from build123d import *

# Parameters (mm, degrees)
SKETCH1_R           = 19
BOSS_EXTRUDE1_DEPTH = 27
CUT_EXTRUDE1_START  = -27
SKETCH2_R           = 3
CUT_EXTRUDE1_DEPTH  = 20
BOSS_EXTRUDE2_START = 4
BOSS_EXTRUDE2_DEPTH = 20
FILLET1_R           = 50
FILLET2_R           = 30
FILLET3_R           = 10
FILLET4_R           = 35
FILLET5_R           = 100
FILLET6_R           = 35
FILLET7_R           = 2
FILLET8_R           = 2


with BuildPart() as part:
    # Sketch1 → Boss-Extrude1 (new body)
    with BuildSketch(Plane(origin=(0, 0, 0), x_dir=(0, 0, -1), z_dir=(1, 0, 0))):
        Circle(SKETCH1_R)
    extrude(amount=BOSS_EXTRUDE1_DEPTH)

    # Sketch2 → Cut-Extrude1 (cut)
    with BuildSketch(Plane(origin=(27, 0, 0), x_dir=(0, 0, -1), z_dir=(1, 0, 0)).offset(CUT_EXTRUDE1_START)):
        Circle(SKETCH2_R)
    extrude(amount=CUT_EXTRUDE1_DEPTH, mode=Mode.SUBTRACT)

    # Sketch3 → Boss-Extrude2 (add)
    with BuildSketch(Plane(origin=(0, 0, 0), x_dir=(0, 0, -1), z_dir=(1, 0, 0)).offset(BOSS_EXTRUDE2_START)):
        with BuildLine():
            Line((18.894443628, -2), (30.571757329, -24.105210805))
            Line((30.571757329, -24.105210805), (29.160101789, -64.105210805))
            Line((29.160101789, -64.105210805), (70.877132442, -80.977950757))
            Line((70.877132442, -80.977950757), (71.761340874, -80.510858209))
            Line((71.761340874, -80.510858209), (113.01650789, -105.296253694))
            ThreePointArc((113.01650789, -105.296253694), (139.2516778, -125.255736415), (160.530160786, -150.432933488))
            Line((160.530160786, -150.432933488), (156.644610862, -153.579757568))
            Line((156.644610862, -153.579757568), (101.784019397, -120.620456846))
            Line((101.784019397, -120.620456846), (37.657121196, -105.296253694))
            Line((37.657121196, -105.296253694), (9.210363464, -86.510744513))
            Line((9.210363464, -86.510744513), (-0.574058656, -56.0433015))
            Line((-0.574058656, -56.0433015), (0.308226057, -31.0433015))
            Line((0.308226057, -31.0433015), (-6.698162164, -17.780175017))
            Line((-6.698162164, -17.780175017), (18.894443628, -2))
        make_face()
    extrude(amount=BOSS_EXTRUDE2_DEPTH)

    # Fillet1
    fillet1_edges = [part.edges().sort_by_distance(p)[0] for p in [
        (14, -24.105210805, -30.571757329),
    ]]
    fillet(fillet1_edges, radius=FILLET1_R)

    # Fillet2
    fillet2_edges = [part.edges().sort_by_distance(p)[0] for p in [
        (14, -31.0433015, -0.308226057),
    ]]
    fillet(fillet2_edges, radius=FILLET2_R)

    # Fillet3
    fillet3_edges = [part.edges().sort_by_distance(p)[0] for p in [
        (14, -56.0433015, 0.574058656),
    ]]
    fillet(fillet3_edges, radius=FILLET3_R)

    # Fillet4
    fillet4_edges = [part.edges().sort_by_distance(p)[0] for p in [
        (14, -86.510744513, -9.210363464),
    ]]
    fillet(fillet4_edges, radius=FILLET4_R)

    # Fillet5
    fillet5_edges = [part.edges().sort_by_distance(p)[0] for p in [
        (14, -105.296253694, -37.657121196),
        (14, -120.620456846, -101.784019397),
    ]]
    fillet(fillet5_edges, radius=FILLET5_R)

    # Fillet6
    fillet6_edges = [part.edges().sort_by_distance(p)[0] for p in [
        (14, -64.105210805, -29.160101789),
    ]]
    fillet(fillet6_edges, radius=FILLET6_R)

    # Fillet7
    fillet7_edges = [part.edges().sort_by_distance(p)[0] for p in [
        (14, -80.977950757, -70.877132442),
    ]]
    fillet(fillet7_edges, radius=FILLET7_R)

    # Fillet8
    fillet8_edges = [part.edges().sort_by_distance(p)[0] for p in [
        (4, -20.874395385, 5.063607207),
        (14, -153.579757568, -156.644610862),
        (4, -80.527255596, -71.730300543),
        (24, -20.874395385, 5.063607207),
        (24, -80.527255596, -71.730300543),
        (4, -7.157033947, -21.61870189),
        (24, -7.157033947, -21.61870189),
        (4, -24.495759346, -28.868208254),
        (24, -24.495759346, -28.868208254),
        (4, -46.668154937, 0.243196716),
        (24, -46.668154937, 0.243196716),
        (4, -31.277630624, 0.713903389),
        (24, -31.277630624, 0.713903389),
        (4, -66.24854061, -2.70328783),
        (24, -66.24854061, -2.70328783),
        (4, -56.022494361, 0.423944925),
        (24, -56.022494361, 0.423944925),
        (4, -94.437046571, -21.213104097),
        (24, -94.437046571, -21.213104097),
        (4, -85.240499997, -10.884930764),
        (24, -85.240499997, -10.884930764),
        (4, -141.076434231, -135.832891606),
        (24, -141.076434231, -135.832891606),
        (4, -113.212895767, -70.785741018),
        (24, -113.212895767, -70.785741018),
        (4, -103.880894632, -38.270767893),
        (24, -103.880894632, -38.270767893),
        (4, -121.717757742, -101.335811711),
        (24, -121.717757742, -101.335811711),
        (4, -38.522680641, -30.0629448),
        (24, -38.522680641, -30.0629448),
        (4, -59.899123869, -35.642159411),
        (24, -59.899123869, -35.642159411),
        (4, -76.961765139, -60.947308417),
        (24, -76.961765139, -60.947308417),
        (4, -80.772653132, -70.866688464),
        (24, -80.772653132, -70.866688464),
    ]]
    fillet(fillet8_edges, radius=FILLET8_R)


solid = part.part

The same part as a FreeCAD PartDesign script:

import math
import FreeCAD as App
import Part
import Sketcher


def edges_at(feature, points):
    """Names of the edges that pass closest to the given points."""
    edges = feature.Shape.Edges
    near = lambda p: min(range(len(edges)), key=lambda i: edges[i].distToShape(Part.Vertex(*p))[0])
    return sorted({f"Edge{near(p) + 1}" for p in points})

doc = App.newDocument("Part")
body = doc.addObject("PartDesign::Body", "Body")

# Sketch on YZ plane
sketch1 = doc.addObject("Sketcher::SketchObject", "Sketch")
body.addObject(sketch1)
sketch1.AttachmentSupport = (doc.YZ_Plane, [""])
sketch1.MapMode = "FlatFace"
sketch1.addGeometry(Part.Circle(App.Vector(0, 0, 0), App.Vector(0, 0, 1), 19), False)
sketch1.addConstraint([
    Sketcher.Constraint("Coincident", 0, 3, -1, 1),
    Sketcher.Constraint("Diameter", 0, 38.0),
])
pad1 = doc.addObject("PartDesign::Pad", "Pad")
body.addObject(pad1)
pad1.Profile = sketch1
pad1.Length = 27

# Sketch on YZ plane
sketch2 = doc.addObject("Sketcher::SketchObject", "Sketch001")
body.addObject(sketch2)
sketch2.AttachmentSupport = (doc.YZ_Plane, [""])
sketch2.MapMode = "FlatFace"
sketch2.addGeometry(Part.Circle(App.Vector(0, 0, 0), App.Vector(0, 0, 1), 3), False)
sketch2.addConstraint([
    Sketcher.Constraint("Coincident", 0, 3, -1, 1),
    Sketcher.Constraint("Diameter", 0, 6.0),
])
pocket1 = doc.addObject("PartDesign::Pocket", "Pocket")
body.addObject(pocket1)
pocket1.Profile = sketch2
pocket1.Length = 20
pocket1.Reversed = True

# Sketch on YZ plane
sketch3 = doc.addObject("Sketcher::SketchObject", "Sketch002")
body.addObject(sketch3)
sketch3.AttachmentSupport = (doc.YZ_Plane, [""])
sketch3.MapMode = "FlatFace"
sketch3.AttachmentOffset = App.Placement(App.Vector(0, 0, 4), App.Rotation())
sketch3.addGeometry([
    Part.LineSegment(App.Vector(-24.1, -30.6, 0), App.Vector(-2, -18.9, 0)),  # 0
    Part.LineSegment(App.Vector(-2, -18.9, 0), App.Vector(-17.8, 6.7, 0)),  # 1
    Part.LineSegment(App.Vector(-17.8, 6.7, 0), App.Vector(-31, -0.3, 0)),  # 2
    Part.LineSegment(App.Vector(-31, -0.3, 0), App.Vector(-56, 0.6, 0)),  # 3
    Part.LineSegment(App.Vector(-56, 0.6, 0), App.Vector(-86.5, -9.2, 0)),  # 4
    Part.LineSegment(App.Vector(-86.5, -9.2, 0), App.Vector(-105.3, -37.7, 0)),  # 5
    Part.LineSegment(App.Vector(-105.3, -37.7, 0), App.Vector(-120.6, -101.8, 0)),  # 6
    Part.LineSegment(App.Vector(-120.6, -101.8, 0), App.Vector(-153.6, -156.6, 0)),  # 7
    Part.LineSegment(App.Vector(-153.6, -156.6, 0), App.Vector(-150.4, -160.5, 0)),  # 8
    Part.ArcOfCircle(Part.Circle(App.Vector(-234.7, -35.3, 0), App.Vector(0, 0, 1), 151), math.radians(-56), math.radians(-31)),  # 9
    Part.LineSegment(App.Vector(-105.3, -113, 0), App.Vector(-80.5, -71.8, 0)),  # 10
    Part.LineSegment(App.Vector(-80.5, -71.8, 0), App.Vector(-81, -70.9, 0)),  # 11
    Part.LineSegment(App.Vector(-81, -70.9, 0), App.Vector(-64.1, -29.2, 0)),  # 12
    Part.LineSegment(App.Vector(-64.1, -29.2, 0), App.Vector(-24.1, -30.6, 0)),  # 13
], False)
sketch3.addConstraint([
    Sketcher.Constraint("Coincident", 0, 2, 1, 1),
    Sketcher.Constraint("Coincident", 1, 2, 2, 1),
    Sketcher.Constraint("Coincident", 2, 2, 3, 1),
    Sketcher.Constraint("Coincident", 3, 2, 4, 1),
    Sketcher.Constraint("Coincident", 4, 2, 5, 1),
    Sketcher.Constraint("Coincident", 5, 2, 6, 1),
    Sketcher.Constraint("Coincident", 6, 2, 7, 1),
    Sketcher.Constraint("Coincident", 7, 2, 8, 1),
    Sketcher.Constraint("Coincident", 8, 2, 9, 1),
    Sketcher.Constraint("Tangent", 9, 2, 10, 1),
    Sketcher.Constraint("Coincident", 10, 2, 11, 1),
    Sketcher.Constraint("Coincident", 11, 2, 12, 1),
    Sketcher.Constraint("Coincident", 12, 2, 13, 1),
    Sketcher.Constraint("Coincident", 13, 2, 0, 1),
    Sketcher.Constraint("Parallel", 0, 2),
    Sketcher.Constraint("Parallel", 7, 10),
    Sketcher.Constraint("Perpendicular", 2, 11),
    Sketcher.Constraint("Parallel", 3, 13),
    Sketcher.Constraint("Vertical", 5, 2, 9, 2),
    Sketcher.Constraint("Distance", 0, 25.0),
    Sketcher.Constraint("Distance", 2, 15.0),
    Sketcher.Constraint("Distance", 4, 32.0),
    Sketcher.Constraint("Distance", 7, 64.0),
    Sketcher.Constraint("Distance", 8, 5.0),
    Sketcher.Constraint("Distance", 11, 1.0),
    Sketcher.Constraint("Distance", 12, 45.0),
    Sketcher.Constraint("DistanceX", 0, 2, -1, 1, 2.0),
    Sketcher.Constraint("DistanceX", 3, 2, 2, 2, 25.0),
    Sketcher.Constraint("DistanceX", 12, 2, 13, 2, 40.0),
    Sketcher.Constraint("Radius", 9, 150.993751),
    Sketcher.Constraint("Distance", 13, 40.024902),
    Sketcher.Constraint("DistanceX", 2, 2, -1, 1, 31.043301),
    Sketcher.Constraint("DistanceY", 12, 2, -1, 1, 29.160102),
    Sketcher.Constraint("DistanceY", 6, 2, 5, 2, 64.126898),
    Sketcher.Constraint("DistanceX", 7, 2, 6, 2, 32.959301),
    Sketcher.Constraint("DistanceX", 6, 2, 10, 2, 40.109599),
    Sketcher.Constraint("DistanceY", 10, 2, 3, 2, 72.3354),
    Sketcher.Constraint("DistanceY", -1, 1, 3, 2, 0.574059),
    Sketcher.Constraint("DistanceY", 5, 2, -1, 1, 37.657121),
    Sketcher.Constraint("DistanceY", 8, 2, -1, 1, 160.530161),
    Sketcher.Constraint("DistanceX", 10, 2, -1, 1, 80.510858),
    Sketcher.Constraint("DistanceX", 4, 2, 1, 2, 68.730569),
])
pad2 = doc.addObject("PartDesign::Pad", "Pad001")
body.addObject(pad2)
pad2.Profile = sketch3
pad2.Length = 20
doc.recompute()

fillet = doc.addObject("PartDesign::Fillet", "Fillet")
body.addObject(fillet)
fillet.Base = (pad2, edges_at(pad2, [(14, -24.105, -30.572)]))
fillet.Radius = 50
doc.recompute()

fillet2 = doc.addObject("PartDesign::Fillet", "Fillet001")
body.addObject(fillet2)
fillet2.Base = (fillet, edges_at(fillet, [(14, -31.043, -0.308)]))
fillet2.Radius = 30
doc.recompute()

fillet3 = doc.addObject("PartDesign::Fillet", "Fillet002")
body.addObject(fillet3)
fillet3.Base = (fillet2, edges_at(fillet2, [(14, -56.043, 0.574)]))
fillet3.Radius = 10
doc.recompute()

fillet4 = doc.addObject("PartDesign::Fillet", "Fillet003")
body.addObject(fillet4)
fillet4.Base = (fillet3, edges_at(fillet3, [(14, -86.511, -9.21)]))
fillet4.Radius = 35
doc.recompute()

fillet5 = doc.addObject("PartDesign::Fillet", "Fillet004")
body.addObject(fillet5)
fillet5.Base = (fillet4, edges_at(fillet4, [(14, -105.296, -37.657), (14, -120.62, -101.784)]))
fillet5.Radius = 100
doc.recompute()

fillet6 = doc.addObject("PartDesign::Fillet", "Fillet005")
body.addObject(fillet6)
fillet6.Base = (fillet5, edges_at(fillet5, [(14, -64.105, -29.16)]))
fillet6.Radius = 35
doc.recompute()

fillet7 = doc.addObject("PartDesign::Fillet", "Fillet006")
body.addObject(fillet7)
fillet7.Base = (fillet6, edges_at(fillet6, [(14, -80.978, -70.877)]))
fillet7.Radius = 2
doc.recompute()

fillet8 = doc.addObject("PartDesign::Fillet", "Fillet007")
body.addObject(fillet8)
fillet8.Base = (fillet7, edges_at(fillet7, [
    (4, -20.874, 5.064),
    (14, -153.58, -156.645),
    (4, -80.527, -71.73),
    (24, -20.874, 5.064),
    (24, -80.527, -71.73),
    (4, -7.157, -21.619),
    (24, -7.157, -21.619),
    (4, -24.496, -28.868),
    (24, -24.496, -28.868),
    (4, -46.668, 0.243),
    (24, -46.668, 0.243),
    (4, -31.278, 0.714),
    (24, -31.278, 0.714),
    (4, -66.249, -2.703),
    (24, -66.249, -2.703),
    (4, -56.022, 0.424),
    (24, -56.022, 0.424),
    (4, -94.437, -21.213),
    (24, -94.437, -21.213),
    (4, -85.24, -10.885),
    (24, -85.24, -10.885),
    (4, -141.076, -135.833),
    (24, -141.076, -135.833),
    (4, -113.213, -70.786),
    (24, -113.213, -70.786),
    (4, -103.881, -38.271),
    (24, -103.881, -38.271),
    (4, -121.718, -101.336),
    (24, -121.718, -101.336),
    (4, -38.523, -30.063),
    (24, -38.523, -30.063),
    (4, -59.899, -35.642),
    (24, -59.899, -35.642),
    (4, -76.962, -60.947),
    (24, -76.962, -60.947),
    (4, -80.773, -70.867),
    (24, -80.773, -70.867),
]))
fillet8.Radius = 2

doc.recompute()
